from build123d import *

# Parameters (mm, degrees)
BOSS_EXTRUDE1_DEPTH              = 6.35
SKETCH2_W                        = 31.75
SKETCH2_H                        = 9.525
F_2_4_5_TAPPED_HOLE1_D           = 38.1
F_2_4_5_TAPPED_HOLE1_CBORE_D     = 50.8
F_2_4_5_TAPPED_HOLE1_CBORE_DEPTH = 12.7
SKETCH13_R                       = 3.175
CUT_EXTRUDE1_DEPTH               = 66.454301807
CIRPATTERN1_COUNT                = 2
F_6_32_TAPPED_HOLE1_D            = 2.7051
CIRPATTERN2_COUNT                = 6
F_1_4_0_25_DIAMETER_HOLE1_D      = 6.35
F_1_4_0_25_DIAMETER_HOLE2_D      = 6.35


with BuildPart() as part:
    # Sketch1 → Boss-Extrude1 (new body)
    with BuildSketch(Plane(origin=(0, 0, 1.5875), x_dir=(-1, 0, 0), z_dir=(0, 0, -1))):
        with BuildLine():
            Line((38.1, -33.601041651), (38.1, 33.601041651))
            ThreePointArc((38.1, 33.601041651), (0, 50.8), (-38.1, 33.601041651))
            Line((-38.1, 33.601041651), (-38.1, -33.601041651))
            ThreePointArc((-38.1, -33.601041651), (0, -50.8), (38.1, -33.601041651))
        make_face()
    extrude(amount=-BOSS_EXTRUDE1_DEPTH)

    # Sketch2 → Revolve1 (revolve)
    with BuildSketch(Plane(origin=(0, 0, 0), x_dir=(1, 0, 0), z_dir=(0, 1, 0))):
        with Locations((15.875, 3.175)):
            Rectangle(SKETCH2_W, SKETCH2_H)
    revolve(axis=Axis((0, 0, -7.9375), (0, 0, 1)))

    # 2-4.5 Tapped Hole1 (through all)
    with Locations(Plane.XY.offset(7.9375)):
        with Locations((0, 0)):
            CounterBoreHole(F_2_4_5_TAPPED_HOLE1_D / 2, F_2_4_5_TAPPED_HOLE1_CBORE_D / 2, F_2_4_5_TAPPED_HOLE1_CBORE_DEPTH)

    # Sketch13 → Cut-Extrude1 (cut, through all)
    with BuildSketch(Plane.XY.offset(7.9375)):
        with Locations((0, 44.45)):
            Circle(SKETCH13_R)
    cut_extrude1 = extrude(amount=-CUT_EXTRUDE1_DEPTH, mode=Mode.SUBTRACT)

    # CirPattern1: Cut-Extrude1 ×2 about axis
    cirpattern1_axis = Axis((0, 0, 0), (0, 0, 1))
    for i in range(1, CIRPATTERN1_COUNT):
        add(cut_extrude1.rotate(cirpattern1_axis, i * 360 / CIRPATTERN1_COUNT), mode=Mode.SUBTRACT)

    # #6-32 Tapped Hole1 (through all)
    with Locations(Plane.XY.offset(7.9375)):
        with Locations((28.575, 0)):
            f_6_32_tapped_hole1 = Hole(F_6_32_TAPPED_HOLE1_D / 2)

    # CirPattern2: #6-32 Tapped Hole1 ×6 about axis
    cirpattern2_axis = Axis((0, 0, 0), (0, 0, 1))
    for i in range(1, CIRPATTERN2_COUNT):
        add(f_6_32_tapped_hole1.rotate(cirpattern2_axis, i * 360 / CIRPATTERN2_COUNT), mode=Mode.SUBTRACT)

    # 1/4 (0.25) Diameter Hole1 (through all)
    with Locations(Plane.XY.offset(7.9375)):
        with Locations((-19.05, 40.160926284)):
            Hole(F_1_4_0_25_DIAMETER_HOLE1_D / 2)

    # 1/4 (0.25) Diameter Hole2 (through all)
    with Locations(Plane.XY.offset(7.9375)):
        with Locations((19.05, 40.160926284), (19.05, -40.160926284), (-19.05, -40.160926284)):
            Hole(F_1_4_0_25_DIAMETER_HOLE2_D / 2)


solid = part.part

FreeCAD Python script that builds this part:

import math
import FreeCAD as App
import Part
import Sketcher
Q = App.Units.Quantity

doc = App.newDocument("Part")
body = doc.addObject("PartDesign::Body", "Body")

# Sketch on XY plane
sketch1 = doc.addObject("Sketcher::SketchObject", "Sketch")
body.addObject(sketch1)
sketch1.AttachmentSupport = (doc.XY_Plane, [""])
sketch1.MapMode = "FlatFace"
sketch1.AttachmentOffset = App.Placement(App.Vector(0, 0, 0.0625 * 25.4), App.Rotation())
sketch1.addGeometry(Part.LineSegment(App.Vector(-38.1, -33.601042, 0), App.Vector(-38.1, 33.601042, 0)), False)
sketch1.addGeometry(Part.ArcOfCircle(Part.Circle(App.Vector(0, 0, 0), App.Vector(0, 0, 1), 50.8), math.radians(41.409622), math.radians(138.590378)), False)
sketch1.addGeometry(Part.LineSegment(App.Vector(38.1, 33.601042, 0), App.Vector(38.1, -33.601042, 0)), False)
sketch1.addGeometry(Part.ArcOfCircle(Part.Circle(App.Vector(0, 0, 0), App.Vector(0, 0, 1), 50.8), math.radians(-138.590378), math.radians(-41.409622)), False)
sketch1.addConstraint(Sketcher.Constraint("Coincident", 0, 2, 1, 2))
sketch1.addConstraint(Sketcher.Constraint("Coincident", 1, 1, 2, 1))
sketch1.addConstraint(Sketcher.Constraint("Coincident", 2, 2, 3, 2))
sketch1.addConstraint(Sketcher.Constraint("Coincident", 3, 1, 0, 1))
sketch1.addConstraint(Sketcher.Constraint("Vertical", 0))
sketch1.addConstraint(Sketcher.Constraint("Vertical", 2))
sketch1.addConstraint(Sketcher.Constraint("Coincident", 1, 3, -1, 1))
sketch1.addConstraint(Sketcher.Constraint("Coincident", 3, 3, -1, 1))
sketch1.addConstraint(Sketcher.Constraint("Equal", 1, 3))
sketch1.addConstraint(Sketcher.Constraint("Horizontal", 0, 2, 1, 1))
sketch1.addConstraint(Sketcher.Constraint("Radius", 1, Q("2 in")))
sketch1.addConstraint(Sketcher.Constraint("DistanceX", 0, 2, 1, 1, Q("3 in")))
pad1 = doc.addObject("PartDesign::Pad", "Pad")
body.addObject(pad1)
pad1.Profile = sketch1
pad1.Length = Q("0.25 in")

# Sketch on XZ plane
sketch2 = doc.addObject("Sketcher::SketchObject", "Sketch001")
body.addObject(sketch2)
sketch2.AttachmentSupport = (doc.XZ_Plane, [""])
sketch2.MapMode = "FlatFace"
sketch2.addGeometry(Part.LineSegment(App.Vector(0, -7.9375, 0), App.Vector(0, 1.5875, 0)), False)
sketch2.addGeometry(Part.LineSegment(App.Vector(0, 1.5875, 0), App.Vector(31.75, 1.5875, 0)), False)
sketch2.addGeometry(Part.LineSegment(App.Vector(31.75, 1.5875, 0), App.Vector(31.75, -7.9375, 0)), False)
sketch2.addGeometry(Part.LineSegment(App.Vector(31.75, -7.9375, 0), App.Vector(0, -7.9375, 0)), False)
sketch2.addConstraint(Sketcher.Constraint("Coincident", 0, 2, 1, 1))
sketch2.addConstraint(Sketcher.Constraint("Coincident", 1, 2, 2, 1))
sketch2.addConstraint(Sketcher.Constraint("Coincident", 2, 2, 3, 1))
sketch2.addConstraint(Sketcher.Constraint("Coincident", 3, 2, 0, 1))
sketch2.addConstraint(Sketcher.Constraint("Vertical", 0))
sketch2.addConstraint(Sketcher.Constraint("Horizontal", 1))
sketch2.addConstraint(Sketcher.Constraint("Vertical", 2))
sketch2.addConstraint(Sketcher.Constraint("Horizontal", 3))
sketch2.addConstraint(Sketcher.Constraint("PointOnObject", 0, 2, -2))
sketch2.addConstraint(Sketcher.Constraint("DistanceX", 1, 1, 1, 2, Q("1.25 in")))
sketch2.addConstraint(Sketcher.Constraint("DistanceY", 0, 1, 0, 2, Q("0.375 in")))
sketch2.addConstraint(Sketcher.Constraint("DistanceY", -1, 1, 0, 2, Q("0.0625 in")))
revolution = doc.addObject("PartDesign::Revolution", "Revolution")
body.addObject(revolution)
revolution.Profile = sketch2
revolution.ReferenceAxis = (sketch2, ["V_Axis"])
revolution.Angle = 360

# Sketch on XY plane
sketch3 = doc.addObject("Sketcher::SketchObject", "Sketch002")
body.addObject(sketch3)
sketch3.AttachmentSupport = (doc.XY_Plane, [""])
sketch3.MapMode = "FlatFace"
sketch3.AttachmentOffset = App.Placement(App.Vector(0, 0, 0.3125 * 25.4), App.Rotation())
sketch3.addGeometry(Part.Circle(App.Vector(0, 0, 0), App.Vector(0, 0, 1), 19.05), False)
sketch3.addConstraint(Sketcher.Constraint("Coincident", 0, 3, -1, 1))
sketch3.addConstraint(Sketcher.Constraint("Diameter", 0, Q("1.5 in")))
doc.recompute()
hole = doc.addObject("PartDesign::Hole", "Hole")
body.addObject(hole)
hole.Profile = sketch3
hole.ThreadType = "None"
hole.Diameter = Q("1.5 in")
hole.DepthType = "ThroughAll"
hole.HoleCutType = "Counterbore"
hole.HoleCutDiameter = Q("2 in")
hole.HoleCutDepth = Q("0.5 in")

# Sketch on XY plane
sketch4 = doc.addObject("Sketcher::SketchObject", "Sketch003")
body.addObject(sketch4)
sketch4.AttachmentSupport = (doc.XY_Plane, [""])
sketch4.MapMode = "FlatFace"
sketch4.AttachmentOffset = App.Placement(App.Vector(0, 0, 0.3125 * 25.4), App.Rotation())
sketch4.addGeometry(Part.Circle(App.Vector(0, 44.45, 0), App.Vector(0, 0, 1), 3.175), False)
sketch4.addConstraint(Sketcher.Constraint("PointOnObject", 0, 3, -2))
sketch4.addConstraint(Sketcher.Constraint("Diameter", 0, Q("0.25 in")))
sketch4.addConstraint(Sketcher.Constraint("DistanceY", -1, 1, 0, 3, Q("1.75 in")))
pocket1 = doc.addObject("PartDesign::Pocket", "Pocket")
body.addObject(pocket1)
pocket1.Profile = sketch4
pocket1.Type = "ThroughAll"
doc.recompute()

polarpattern = doc.addObject("PartDesign::PolarPattern", "PolarPattern")
body.addObject(polarpattern)
polarpattern.Originals = [pocket1]
polarpattern.Axis = (doc.Z_Axis, [""])
polarpattern.Angle = 360
polarpattern.Occurrences = 2
body.Tip = polarpattern

# Sketch on XY plane
sketch5 = doc.addObject("Sketcher::SketchObject", "Sketch004")
body.addObject(sketch5)
sketch5.AttachmentSupport = (doc.XY_Plane, [""])
sketch5.MapMode = "FlatFace"
sketch5.AttachmentOffset = App.Placement(App.Vector(0, 0, 0.3125 * 25.4), App.Rotation())
sketch5.addGeometry(Part.Circle(App.Vector(28.575, 0, 0), App.Vector(0, 0, 1), 1.35255), False)
sketch5.addConstraint(Sketcher.Constraint("PointOnObject", 0, 3, -1))
sketch5.addConstraint(Sketcher.Constraint("Diameter", 0, Q("0.1065 in")))
sketch5.addConstraint(Sketcher.Constraint("DistanceX", -1, 1, 0, 3, Q("1.125 in")))
doc.recompute()
hole2 = doc.addObject("PartDesign::Hole", "Hole001")
body.addObject(hole2)
hole2.Profile = sketch5
hole2.ThreadType = "None"
hole2.Diameter = Q("0.1065 in")
hole2.DepthType = "ThroughAll"
doc.recompute()

polarpattern2 = doc.addObject("PartDesign::PolarPattern", "PolarPattern001")
body.addObject(polarpattern2)
polarpattern2.Originals = [hole2]
polarpattern2.Axis = (doc.Z_Axis, [""])
polarpattern2.Angle = 360
polarpattern2.Occurrences = 6
body.Tip = polarpattern2

# Sketch on XY plane
sketch6 = doc.addObject("Sketcher::SketchObject", "Sketch005")
body.addObject(sketch6)
sketch6.AttachmentSupport = (doc.XY_Plane, [""])
sketch6.MapMode = "FlatFace"
sketch6.AttachmentOffset = App.Placement(App.Vector(0, 0, 0.3125 * 25.4), App.Rotation())
sketch6.addGeometry(Part.Circle(App.Vector(-19.05, 40.160926, 0), App.Vector(0, 0, 1), 3.175), False)
sketch6.addConstraint(Sketcher.Constraint("Diameter", 0, Q("0.25 in")))
sketch6.addConstraint(Sketcher.Constraint("DistanceX", 0, 3, -1, 1, Q("0.75 in")))
sketch6.addConstraint(Sketcher.Constraint("DistanceY", -1, 1, 0, 3, 40.160926))
doc.recompute()
hole3 = doc.addObject("PartDesign::Hole", "Hole002")
body.addObject(hole3)
hole3.Profile = sketch6
hole3.ThreadType = "None"
hole3.Diameter = Q("0.25 in")
hole3.DepthType = "ThroughAll"

# Sketch on XY plane
sketch7 = doc.addObject("Sketcher::SketchObject", "Sketch006")
body.addObject(sketch7)
sketch7.AttachmentSupport = (doc.XY_Plane, [""])
sketch7.MapMode = "FlatFace"
sketch7.AttachmentOffset = App.Placement(App.Vector(0, 0, 0.3125 * 25.4), App.Rotation())
sketch7.addGeometry(Part.Circle(App.Vector(19.05, 40.160926, 0), App.Vector(0, 0, 1), 3.175), False)
sketch7.addGeometry(Part.Circle(App.Vector(19.05, -40.160926, 0), App.Vector(0, 0, 1), 3.175), False)
sketch7.addGeometry(Part.Circle(App.Vector(-19.05, -40.160926, 0), App.Vector(0, 0, 1), 3.175), False)
sketch7.addConstraint(Sketcher.Constraint("Equal", 0, 1))
sketch7.addConstraint(Sketcher.Constraint("Equal", 1, 2))
sketch7.addConstraint(Sketcher.Constraint("Symmetric", 0, 3, 2, 3, -1, 1))
sketch7.addConstraint(Sketcher.Constraint("Symmetric", 1, 3, 2, 3, -2))
sketch7.addConstraint(Sketcher.Constraint("Diameter", 0, Q("0.25 in")))
sketch7.addConstraint(Sketcher.Constraint("DistanceX", 2, 3, 1, 3, Q("1.5 in")))
sketch7.addConstraint(Sketcher.Constraint("DistanceY", -1, 1, 0, 3, 40.160926))
doc.recompute()
hole4 = doc.addObject("PartDesign::Hole", "Hole003")
body.addObject(hole4)
hole4.Profile = sketch7
hole4.ThreadType = "None"
hole4.Diameter = Q("0.25 in")
hole4.DepthType = "ThroughAll"

doc.recompute()
